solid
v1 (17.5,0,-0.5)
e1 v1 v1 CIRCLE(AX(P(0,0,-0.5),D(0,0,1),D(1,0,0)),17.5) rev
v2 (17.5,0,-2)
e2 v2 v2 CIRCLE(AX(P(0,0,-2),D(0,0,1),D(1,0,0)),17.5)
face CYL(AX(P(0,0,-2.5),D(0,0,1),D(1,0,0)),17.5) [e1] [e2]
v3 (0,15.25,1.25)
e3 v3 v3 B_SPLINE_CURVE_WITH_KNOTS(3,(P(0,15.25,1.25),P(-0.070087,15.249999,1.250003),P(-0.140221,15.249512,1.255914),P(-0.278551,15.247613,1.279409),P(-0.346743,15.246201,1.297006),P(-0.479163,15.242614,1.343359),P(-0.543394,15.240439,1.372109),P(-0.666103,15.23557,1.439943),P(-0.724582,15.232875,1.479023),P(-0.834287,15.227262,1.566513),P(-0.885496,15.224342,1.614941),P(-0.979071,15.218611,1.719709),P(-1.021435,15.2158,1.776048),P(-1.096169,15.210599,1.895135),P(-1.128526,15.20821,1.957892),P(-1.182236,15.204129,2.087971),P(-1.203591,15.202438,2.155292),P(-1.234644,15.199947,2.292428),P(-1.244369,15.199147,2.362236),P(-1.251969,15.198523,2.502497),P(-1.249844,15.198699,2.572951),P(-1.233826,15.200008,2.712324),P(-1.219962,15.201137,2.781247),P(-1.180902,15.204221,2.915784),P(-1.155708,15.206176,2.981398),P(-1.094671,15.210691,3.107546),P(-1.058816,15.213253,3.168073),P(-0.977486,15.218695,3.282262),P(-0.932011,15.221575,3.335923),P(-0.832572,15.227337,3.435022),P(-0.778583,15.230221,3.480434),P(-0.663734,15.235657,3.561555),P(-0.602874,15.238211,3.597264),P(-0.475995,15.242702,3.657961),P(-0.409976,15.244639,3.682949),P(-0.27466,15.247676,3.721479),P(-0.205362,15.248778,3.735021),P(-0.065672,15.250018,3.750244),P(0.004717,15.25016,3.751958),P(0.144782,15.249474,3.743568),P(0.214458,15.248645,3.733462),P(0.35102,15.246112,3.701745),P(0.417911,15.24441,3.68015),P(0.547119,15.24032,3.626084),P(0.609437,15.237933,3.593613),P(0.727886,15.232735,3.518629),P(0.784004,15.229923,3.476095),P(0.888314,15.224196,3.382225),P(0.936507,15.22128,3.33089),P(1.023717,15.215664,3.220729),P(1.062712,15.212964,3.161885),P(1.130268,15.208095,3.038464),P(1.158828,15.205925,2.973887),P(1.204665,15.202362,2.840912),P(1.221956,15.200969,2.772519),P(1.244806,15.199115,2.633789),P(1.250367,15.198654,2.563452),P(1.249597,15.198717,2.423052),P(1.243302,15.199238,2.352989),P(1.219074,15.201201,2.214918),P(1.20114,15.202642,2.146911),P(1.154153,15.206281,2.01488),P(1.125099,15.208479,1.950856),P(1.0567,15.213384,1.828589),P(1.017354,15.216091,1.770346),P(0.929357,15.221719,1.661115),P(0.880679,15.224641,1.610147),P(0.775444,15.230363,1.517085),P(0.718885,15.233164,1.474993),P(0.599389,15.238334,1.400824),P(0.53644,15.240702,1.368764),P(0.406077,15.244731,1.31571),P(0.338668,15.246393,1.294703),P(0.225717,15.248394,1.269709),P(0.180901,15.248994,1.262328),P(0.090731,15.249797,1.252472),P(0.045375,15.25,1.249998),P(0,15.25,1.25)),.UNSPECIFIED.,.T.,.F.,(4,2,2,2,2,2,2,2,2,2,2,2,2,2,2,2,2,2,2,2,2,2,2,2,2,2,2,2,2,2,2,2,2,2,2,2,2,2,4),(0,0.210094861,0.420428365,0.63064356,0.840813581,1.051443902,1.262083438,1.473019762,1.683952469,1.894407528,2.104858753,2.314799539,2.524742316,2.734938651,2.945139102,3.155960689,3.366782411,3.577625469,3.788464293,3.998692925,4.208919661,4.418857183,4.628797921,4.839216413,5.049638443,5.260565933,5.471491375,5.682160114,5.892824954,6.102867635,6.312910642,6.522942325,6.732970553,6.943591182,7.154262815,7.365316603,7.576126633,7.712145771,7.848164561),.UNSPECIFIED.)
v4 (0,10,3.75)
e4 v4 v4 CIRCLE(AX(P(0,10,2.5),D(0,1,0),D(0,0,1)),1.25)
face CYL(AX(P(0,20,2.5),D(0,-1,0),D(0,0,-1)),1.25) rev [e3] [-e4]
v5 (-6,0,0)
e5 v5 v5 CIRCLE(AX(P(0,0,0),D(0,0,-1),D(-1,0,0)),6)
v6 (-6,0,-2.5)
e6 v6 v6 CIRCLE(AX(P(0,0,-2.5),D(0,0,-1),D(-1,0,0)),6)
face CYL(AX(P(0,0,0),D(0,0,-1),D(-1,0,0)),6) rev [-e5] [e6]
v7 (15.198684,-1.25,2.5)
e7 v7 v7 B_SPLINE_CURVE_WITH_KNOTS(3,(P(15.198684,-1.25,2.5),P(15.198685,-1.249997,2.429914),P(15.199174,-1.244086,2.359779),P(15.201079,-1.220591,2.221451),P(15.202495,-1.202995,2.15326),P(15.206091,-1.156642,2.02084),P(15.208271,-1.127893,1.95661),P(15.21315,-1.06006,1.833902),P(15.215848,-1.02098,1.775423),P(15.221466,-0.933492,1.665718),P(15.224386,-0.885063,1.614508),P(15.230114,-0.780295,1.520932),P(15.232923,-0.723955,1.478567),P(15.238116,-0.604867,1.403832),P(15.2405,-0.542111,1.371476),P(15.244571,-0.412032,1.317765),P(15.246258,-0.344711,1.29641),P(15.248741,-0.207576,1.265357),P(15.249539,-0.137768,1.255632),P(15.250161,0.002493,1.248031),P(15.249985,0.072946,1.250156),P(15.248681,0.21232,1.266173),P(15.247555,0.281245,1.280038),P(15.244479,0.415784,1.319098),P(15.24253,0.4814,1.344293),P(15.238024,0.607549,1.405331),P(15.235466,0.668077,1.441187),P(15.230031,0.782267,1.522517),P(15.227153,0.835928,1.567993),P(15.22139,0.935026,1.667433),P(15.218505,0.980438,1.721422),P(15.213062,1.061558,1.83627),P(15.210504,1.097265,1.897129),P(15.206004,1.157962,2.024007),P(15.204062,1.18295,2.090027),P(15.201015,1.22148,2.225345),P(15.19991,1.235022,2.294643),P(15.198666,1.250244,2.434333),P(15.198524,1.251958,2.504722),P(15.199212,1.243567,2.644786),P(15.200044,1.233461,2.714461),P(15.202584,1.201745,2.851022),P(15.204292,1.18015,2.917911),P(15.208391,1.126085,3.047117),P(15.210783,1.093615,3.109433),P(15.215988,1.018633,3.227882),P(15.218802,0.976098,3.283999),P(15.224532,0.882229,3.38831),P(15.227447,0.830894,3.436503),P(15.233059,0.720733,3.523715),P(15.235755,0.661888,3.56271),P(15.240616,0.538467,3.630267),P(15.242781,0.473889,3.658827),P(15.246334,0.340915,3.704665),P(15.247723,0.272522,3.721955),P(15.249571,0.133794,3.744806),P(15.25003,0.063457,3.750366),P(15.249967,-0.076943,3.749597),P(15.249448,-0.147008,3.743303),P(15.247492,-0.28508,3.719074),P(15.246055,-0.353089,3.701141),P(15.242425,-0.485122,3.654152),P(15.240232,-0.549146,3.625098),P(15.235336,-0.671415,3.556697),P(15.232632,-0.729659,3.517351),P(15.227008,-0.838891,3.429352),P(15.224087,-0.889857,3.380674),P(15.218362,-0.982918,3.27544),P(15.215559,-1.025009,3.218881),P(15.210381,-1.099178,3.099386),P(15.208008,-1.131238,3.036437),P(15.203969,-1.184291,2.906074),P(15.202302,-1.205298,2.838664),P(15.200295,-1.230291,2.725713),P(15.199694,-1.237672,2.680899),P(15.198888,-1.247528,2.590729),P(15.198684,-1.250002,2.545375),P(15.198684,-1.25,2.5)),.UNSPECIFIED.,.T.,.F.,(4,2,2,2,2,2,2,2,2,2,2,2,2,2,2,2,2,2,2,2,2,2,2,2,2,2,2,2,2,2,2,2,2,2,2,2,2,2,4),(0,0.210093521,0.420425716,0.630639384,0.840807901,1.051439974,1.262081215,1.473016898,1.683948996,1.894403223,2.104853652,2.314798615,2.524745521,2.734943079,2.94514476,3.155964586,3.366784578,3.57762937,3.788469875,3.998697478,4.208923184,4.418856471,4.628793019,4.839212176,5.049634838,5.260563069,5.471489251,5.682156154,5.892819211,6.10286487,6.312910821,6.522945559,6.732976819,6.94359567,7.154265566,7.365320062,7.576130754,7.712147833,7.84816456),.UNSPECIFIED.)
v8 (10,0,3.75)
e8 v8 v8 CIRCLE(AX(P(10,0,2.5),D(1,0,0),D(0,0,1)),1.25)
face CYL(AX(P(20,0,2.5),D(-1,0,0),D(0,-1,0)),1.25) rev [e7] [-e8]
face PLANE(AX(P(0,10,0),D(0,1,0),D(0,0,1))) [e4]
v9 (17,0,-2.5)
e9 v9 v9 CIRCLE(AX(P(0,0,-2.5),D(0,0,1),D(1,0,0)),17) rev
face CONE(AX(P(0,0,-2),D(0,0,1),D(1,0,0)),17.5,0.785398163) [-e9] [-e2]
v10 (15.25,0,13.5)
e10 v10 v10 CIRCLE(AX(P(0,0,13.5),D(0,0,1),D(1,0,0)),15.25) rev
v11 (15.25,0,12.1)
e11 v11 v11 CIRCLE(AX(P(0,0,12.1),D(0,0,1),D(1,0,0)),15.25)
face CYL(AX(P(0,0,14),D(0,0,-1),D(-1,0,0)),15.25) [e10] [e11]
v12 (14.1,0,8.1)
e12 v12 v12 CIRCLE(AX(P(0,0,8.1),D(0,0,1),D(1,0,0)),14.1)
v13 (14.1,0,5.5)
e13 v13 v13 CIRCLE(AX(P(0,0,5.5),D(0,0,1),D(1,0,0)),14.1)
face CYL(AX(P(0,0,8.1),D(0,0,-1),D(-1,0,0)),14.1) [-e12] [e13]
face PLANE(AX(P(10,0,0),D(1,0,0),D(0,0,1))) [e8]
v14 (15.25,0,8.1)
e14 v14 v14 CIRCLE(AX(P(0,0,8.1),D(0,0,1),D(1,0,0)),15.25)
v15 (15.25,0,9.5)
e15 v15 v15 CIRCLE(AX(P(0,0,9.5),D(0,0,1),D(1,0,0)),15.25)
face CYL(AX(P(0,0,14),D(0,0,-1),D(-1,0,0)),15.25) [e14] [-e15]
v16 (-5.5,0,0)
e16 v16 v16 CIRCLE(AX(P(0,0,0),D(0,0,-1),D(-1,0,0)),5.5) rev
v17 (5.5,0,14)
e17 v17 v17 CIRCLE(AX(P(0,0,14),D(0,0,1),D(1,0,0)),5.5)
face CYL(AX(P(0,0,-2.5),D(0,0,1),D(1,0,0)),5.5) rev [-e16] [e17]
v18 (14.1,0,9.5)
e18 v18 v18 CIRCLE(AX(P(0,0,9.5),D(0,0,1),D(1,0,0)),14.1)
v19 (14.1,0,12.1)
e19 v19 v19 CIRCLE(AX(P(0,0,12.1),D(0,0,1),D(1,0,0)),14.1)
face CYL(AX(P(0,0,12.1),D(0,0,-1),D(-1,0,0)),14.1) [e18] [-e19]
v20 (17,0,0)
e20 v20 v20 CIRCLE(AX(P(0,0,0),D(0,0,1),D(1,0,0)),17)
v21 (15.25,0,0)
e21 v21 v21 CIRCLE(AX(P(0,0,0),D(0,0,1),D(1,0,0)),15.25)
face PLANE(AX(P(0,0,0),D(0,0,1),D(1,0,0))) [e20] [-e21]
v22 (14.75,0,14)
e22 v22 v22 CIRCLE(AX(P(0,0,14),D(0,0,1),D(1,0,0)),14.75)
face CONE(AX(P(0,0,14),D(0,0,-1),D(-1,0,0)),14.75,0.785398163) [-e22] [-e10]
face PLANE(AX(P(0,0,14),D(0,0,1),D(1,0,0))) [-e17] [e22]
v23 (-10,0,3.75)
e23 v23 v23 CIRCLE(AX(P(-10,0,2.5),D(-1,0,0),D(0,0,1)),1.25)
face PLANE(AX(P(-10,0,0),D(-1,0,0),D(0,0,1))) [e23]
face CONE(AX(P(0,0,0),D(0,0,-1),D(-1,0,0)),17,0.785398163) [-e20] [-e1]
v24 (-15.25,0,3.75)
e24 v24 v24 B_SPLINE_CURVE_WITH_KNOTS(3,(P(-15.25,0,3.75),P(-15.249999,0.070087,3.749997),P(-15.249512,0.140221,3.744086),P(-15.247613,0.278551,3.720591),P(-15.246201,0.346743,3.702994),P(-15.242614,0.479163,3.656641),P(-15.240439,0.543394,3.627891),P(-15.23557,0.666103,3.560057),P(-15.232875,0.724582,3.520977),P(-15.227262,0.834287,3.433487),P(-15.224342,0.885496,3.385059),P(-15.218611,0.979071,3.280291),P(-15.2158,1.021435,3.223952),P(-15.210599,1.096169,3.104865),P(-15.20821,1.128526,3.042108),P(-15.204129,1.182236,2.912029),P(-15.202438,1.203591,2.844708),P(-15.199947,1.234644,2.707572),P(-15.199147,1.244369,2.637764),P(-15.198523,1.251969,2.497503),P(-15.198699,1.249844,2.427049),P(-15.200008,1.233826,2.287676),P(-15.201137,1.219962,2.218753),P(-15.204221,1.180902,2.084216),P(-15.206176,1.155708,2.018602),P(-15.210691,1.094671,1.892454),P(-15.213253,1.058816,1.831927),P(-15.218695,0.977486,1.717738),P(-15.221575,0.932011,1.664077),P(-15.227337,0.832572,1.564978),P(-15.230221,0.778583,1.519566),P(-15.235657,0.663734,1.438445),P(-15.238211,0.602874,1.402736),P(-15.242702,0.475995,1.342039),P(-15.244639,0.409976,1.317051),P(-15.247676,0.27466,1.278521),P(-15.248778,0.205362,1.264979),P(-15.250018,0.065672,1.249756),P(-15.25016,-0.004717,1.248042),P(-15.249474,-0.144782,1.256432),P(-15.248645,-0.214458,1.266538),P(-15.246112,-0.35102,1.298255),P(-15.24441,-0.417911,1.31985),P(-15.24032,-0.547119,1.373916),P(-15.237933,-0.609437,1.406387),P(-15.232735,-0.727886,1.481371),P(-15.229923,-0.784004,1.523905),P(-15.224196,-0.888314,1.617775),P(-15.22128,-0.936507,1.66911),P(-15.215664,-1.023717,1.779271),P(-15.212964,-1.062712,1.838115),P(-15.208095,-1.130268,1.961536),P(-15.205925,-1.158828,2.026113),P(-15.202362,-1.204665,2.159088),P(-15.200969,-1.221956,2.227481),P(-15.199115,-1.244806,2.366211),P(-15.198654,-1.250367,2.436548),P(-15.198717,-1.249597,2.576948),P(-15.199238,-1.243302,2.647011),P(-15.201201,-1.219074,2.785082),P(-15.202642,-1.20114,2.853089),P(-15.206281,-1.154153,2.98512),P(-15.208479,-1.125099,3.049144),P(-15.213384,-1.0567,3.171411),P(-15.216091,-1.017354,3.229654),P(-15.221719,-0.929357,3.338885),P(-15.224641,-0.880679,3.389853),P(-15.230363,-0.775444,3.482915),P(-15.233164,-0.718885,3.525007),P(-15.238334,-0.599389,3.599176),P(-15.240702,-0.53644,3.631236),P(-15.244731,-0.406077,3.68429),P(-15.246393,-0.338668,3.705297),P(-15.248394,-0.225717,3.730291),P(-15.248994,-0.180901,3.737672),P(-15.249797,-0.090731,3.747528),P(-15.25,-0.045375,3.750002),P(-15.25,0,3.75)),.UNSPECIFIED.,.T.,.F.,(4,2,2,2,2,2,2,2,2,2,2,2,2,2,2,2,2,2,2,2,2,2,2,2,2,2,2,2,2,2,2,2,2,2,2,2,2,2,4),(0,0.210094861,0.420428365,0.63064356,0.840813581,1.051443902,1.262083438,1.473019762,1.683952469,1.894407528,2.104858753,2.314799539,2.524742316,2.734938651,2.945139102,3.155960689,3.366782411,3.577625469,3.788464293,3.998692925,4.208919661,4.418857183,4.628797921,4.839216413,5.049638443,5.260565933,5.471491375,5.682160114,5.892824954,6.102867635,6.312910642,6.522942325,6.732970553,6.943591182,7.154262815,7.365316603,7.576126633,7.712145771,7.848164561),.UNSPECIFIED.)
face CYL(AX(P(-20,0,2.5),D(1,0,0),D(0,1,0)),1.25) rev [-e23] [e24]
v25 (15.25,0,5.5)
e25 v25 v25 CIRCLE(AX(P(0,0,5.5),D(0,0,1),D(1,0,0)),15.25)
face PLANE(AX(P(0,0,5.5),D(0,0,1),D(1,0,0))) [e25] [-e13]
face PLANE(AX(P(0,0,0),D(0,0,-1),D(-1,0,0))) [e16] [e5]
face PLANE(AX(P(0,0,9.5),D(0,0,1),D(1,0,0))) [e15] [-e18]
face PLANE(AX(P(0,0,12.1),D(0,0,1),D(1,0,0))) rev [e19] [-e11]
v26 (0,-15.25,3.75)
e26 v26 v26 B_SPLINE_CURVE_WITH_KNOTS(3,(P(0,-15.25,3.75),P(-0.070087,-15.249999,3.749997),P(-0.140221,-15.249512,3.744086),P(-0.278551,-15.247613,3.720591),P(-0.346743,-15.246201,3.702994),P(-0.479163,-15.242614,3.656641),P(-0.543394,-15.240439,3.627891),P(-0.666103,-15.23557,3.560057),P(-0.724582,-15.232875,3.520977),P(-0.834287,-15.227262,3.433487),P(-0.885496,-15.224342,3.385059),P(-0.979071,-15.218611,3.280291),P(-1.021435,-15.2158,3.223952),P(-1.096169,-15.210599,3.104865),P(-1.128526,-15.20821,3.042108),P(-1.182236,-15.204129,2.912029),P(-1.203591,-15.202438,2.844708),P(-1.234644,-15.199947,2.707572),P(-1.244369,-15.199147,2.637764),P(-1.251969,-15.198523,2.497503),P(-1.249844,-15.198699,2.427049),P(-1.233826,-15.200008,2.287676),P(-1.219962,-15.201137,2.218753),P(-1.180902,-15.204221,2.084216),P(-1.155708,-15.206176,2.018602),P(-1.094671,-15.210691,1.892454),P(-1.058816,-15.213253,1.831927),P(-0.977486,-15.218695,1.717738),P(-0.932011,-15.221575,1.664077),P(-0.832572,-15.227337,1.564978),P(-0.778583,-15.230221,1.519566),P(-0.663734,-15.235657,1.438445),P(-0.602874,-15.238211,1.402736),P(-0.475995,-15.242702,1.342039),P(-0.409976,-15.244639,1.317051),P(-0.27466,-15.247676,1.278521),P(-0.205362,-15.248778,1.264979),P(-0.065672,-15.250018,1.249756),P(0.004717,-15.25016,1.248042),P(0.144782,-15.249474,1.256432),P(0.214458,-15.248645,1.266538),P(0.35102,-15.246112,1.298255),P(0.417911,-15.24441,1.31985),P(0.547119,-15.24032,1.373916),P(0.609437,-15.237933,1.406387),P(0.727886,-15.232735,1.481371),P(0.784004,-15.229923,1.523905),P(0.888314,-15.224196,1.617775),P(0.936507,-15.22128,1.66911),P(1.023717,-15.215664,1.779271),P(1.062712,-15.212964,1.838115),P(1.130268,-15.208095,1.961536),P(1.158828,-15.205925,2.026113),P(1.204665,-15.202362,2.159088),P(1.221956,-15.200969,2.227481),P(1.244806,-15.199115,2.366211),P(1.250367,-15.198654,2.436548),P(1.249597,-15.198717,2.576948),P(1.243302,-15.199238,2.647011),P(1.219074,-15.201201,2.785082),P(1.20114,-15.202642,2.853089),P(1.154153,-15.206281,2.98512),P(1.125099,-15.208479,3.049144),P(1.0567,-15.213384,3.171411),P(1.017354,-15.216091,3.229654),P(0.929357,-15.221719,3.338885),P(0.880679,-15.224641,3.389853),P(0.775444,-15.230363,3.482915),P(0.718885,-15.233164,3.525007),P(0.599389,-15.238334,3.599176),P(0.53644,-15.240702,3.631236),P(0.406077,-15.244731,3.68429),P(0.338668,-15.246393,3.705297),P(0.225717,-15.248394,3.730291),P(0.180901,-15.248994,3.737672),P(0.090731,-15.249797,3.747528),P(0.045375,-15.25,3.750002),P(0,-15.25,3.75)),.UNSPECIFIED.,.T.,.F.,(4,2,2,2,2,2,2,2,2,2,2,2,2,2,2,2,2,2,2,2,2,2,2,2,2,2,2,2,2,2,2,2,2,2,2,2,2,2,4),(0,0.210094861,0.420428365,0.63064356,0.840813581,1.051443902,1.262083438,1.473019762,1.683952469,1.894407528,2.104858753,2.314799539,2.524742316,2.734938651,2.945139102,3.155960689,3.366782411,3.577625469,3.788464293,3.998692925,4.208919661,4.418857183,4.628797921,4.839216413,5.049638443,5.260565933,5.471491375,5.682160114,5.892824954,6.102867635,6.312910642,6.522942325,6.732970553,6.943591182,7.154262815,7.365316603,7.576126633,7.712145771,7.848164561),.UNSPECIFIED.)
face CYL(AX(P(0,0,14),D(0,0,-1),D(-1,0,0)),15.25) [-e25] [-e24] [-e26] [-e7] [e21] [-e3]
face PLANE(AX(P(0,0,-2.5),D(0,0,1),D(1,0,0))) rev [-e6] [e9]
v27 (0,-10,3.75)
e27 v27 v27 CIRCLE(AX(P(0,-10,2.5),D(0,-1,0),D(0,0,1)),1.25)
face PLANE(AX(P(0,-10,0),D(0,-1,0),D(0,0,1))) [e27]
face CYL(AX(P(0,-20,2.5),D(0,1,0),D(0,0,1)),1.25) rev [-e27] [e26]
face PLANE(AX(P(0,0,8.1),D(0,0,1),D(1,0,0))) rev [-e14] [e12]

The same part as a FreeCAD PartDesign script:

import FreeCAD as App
import Part
import Sketcher

V = App.Vector
Q = App.Units.Quantity


def edges_at(feature, points):
    """Names of the edges that pass closest to the given points."""
    edges = feature.Shape.Edges
    near = lambda p: min(range(len(edges)), key=lambda i: edges[i].distToShape(Part.Vertex(*p))[0])
    return sorted({f"Edge{near(p) + 1}" for p in points})

doc = App.newDocument("Part")
body = doc.addObject("PartDesign::Body", "Body")

sketch1 = body.newObject("Sketcher::SketchObject", "Sketch")
sketch1.AttachmentSupport = (doc.getObject("XY_Plane"), [""])
sketch1.MapMode = "FlatFace"
sketch1.addGeometry([
    Part.Circle(V(0, 0, 0), V(0, 0, 1), 18),
    Part.Circle(V(0, 0, 0), V(0, 0, 1), 6),
], False)
sketch1.addConstraint([
    Sketcher.Constraint("Coincident", 0, 3, -1, 1),
    Sketcher.Constraint("Coincident", 1, 3, -1, 1),
    Sketcher.Constraint("Diameter", 0, Q("35 mm")),
    Sketcher.Constraint("Diameter", 1, Q("11 mm")),
])
pad1 = body.newObject("PartDesign::Pad", "Pad")
pad1.Profile = sketch1
pad1.Length = 2.5
pad1.Reversed = True

sketch2 = body.newObject("Sketcher::SketchObject", "Sketch001")
sketch2.AttachmentSupport = (doc.getObject("XY_Plane"), [""])
sketch2.MapMode = "FlatFace"
sketch2.AttachmentOffset = App.Placement(V(0, 0, 14), App.Rotation())
sketch2.addGeometry([
    Part.Circle(V(0, 0, 0), V(0, 0, 1), 15),
    Part.Circle(V(0, 0, 0), V(0, 0, 1), 6),
], False)
sketch2.addConstraint([
    Sketcher.Constraint("Coincident", 0, 3, -1, 1),
    Sketcher.Constraint("Coincident", 1, 3, -1, 1),
    Sketcher.Constraint("Diameter", 1, Q("11 mm")),
    Sketcher.Constraint("Diameter", 0, Q("30.5 mm")),
])
pad2 = body.newObject("PartDesign::Pad", "Pad001")
pad2.Profile = sketch2
pad2.Length = 14
pad2.Reversed = True

sketch3 = body.newObject("Sketcher::SketchObject", "Sketch002")
sketch3.AttachmentSupport = (doc.getObject("XY_Plane"), [""])
sketch3.MapMode = "FlatFace"
sketch3.AttachmentOffset = App.Placement(V(0, 0, 8.1), App.Rotation())
sketch3.addGeometry([
    Part.Circle(V(0, 0, 0), V(0, 0, 1), 15),
    Part.Circle(V(0, 0, 0), V(0, 0, 1), 14),
], False)
sketch3.addConstraint([
    Sketcher.Constraint("Coincident", 0, 3, -1, 1),
    Sketcher.Constraint("Coincident", 1, 3, -1, 1),
    Sketcher.Constraint("Diameter", 0, Q("30.5 mm")),
    Sketcher.Constraint("Diameter", 1, Q("28.2 mm")),
])
pocket1 = body.newObject("PartDesign::Pocket", "Pocket")
pocket1.Profile = sketch3
pocket1.Length = 2.6

sketch4 = body.newObject("Sketcher::SketchObject", "Sketch003")
sketch4.AttachmentSupport = (doc.getObject("XY_Plane"), [""])
sketch4.MapMode = "FlatFace"
sketch4.AttachmentOffset = App.Placement(V(0, 0, 12.1), App.Rotation())
sketch4.addGeometry([
    Part.Circle(V(0, 0, 0), V(0, 0, 1), 15),
    Part.Circle(V(0, 0, 0), V(0, 0, 1), 14),
], False)
sketch4.addConstraint([
    Sketcher.Constraint("Coincident", 0, 3, -1, 1),
    Sketcher.Constraint("Coincident", 1, 3, -1, 1),
    Sketcher.Constraint("Diameter", 0, Q("30.5 mm")),
    Sketcher.Constraint("Diameter", 1, Q("28.2 mm")),
])
pocket2 = body.newObject("PartDesign::Pocket", "Pocket001")
pocket2.Profile = sketch4
pocket2.Length = 2.6
doc.recompute()

chamfer = body.newObject("PartDesign::Chamfer", "Chamfer")
chamfer.Base = (pocket2, edges_at(pocket2, [(-15.25, 0, 14), (-17.5, 0, 0), (-17.5, 0, -2.5)]))
chamfer.Size = 0.5

sketch5 = body.newObject("Sketcher::SketchObject", "Sketch004")
sketch5.AttachmentSupport = (doc.getObject("XY_Plane"), [""])
sketch5.MapMode = "FlatFace"
sketch5.AttachmentOffset = App.Placement(V(0, 0, -2.5), App.Rotation())
sketch5.addGeometry(Part.Circle(V(0, 0, 0), V(0, 0, 1), 6), False)
sketch5.addConstraint([
    Sketcher.Constraint("Coincident", 0, 3, -1, 1),
    Sketcher.Constraint("Diameter", 0, Q("12 mm")),
])
pocket3 = body.newObject("PartDesign::Pocket", "Pocket002")
pocket3.Profile = sketch5
pocket3.Length = 2.5
pocket3.Reversed = True

sketch6 = body.newObject("Sketcher::SketchObject", "Sketch005")
sketch6.AttachmentSupport = (doc.getObject("XZ_Plane"), [""])
sketch6.MapMode = "FlatFace"
sketch6.AttachmentOffset = App.Placement(V(0, 0, -10), App.Rotation())
sketch6.addGeometry(Part.Circle(V(0, 2.5, 0), V(0, 0, 1), 1.2), False)
sketch6.addConstraint([
    Sketcher.Constraint("PointOnObject", 0, 3, -2),
    Sketcher.Constraint("Diameter", 0, Q("2.5 mm")),
    Sketcher.Constraint("DistanceY", -1, 1, 0, 3, Q("2.5 mm")),
])
pocket4 = body.newObject("PartDesign::Pocket", "Pocket003")
pocket4.Profile = sketch6
pocket4.Length = 10
doc.recompute()

polarpattern = body.newObject("PartDesign::PolarPattern", "PolarPattern")
polarpattern.Originals = [pocket4]
polarpattern.Axis = (doc.getObject("Z_Axis"), [""])
polarpattern.Angle = 360
polarpattern.Occurrences = 4
body.Tip = polarpattern

doc.recompute()
